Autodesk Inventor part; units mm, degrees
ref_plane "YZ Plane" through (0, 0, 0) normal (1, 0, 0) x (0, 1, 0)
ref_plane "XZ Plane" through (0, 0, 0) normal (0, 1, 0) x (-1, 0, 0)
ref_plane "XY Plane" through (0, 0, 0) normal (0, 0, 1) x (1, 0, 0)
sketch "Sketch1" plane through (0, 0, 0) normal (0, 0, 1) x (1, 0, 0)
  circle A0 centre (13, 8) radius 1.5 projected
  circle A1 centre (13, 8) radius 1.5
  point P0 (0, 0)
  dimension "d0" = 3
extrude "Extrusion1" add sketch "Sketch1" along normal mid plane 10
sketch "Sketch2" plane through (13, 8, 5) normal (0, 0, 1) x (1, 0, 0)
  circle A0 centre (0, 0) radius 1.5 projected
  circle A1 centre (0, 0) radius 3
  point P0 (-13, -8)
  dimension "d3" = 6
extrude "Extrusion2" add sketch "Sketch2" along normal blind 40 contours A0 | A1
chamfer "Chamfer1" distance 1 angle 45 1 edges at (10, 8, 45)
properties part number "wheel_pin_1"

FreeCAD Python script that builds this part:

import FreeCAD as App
import Part
import Sketcher
from FreeCAD import Vector


def edges_at(feature, points):
    """Names of the edges that pass closest to the given points."""
    edges = feature.Shape.Edges
    near = lambda p: min(range(len(edges)), key=lambda i: edges[i].distToShape(Part.Vertex(*p))[0])
    return sorted({f"Edge{near(p) + 1}" for p in points})

doc = App.newDocument("Part")
params = doc.addObject("Spreadsheet::Sheet", "Params")
for row, (alias, value) in enumerate([
    ("sketch1_diameter", "3 mm"),
    ("pad1_length", "10 mm"),
    ("sketch2_diameter", "6 mm"),
    ("pad2_length", "40 mm"),
    ("chamfer_size", "1 mm"),
], start=1):
    params.set(f"A{row}", alias)
    params.set(f"B{row}", "=" + value)
    params.setAlias(f"B{row}", alias)

body = doc.addObject("PartDesign::Body", "Body")

# Sketch on XY plane
sketch1 = body.newObject("Sketcher::SketchObject", "Sketch")
sketch1.AttachmentSupport = (doc.getObject("XY_Plane"), [""])
sketch1.MapMode = "FlatFace"
sketch1.addGeometry(Part.Circle(Vector(13, 8, 0), Vector(0, 0, 1), 1.5), False)
sketch1.addConstraint([
    Sketcher.Constraint("Diameter", 0, 3.0),
    Sketcher.Constraint("DistanceX", -1, 1, 0, 3, 13.0),
    Sketcher.Constraint("DistanceY", -1, 1, 0, 3, 8.0),
])
sketch1.setExpression("Constraints[0]", "Params.sketch1_diameter")
pad1 = body.newObject("PartDesign::Pad", "Pad")
pad1.Profile = sketch1
pad1.setExpression("Length", "Params.pad1_length")
pad1.Midplane = True

# Sketch on XY plane
sketch2 = body.newObject("Sketcher::SketchObject", "Sketch001")
sketch2.AttachmentSupport = (doc.getObject("XY_Plane"), [""])
sketch2.MapMode = "FlatFace"
sketch2.AttachmentOffset = App.Placement(Vector(0, 0, 5), App.Rotation())
sketch2.addGeometry(Part.Circle(Vector(13, 8, 0), Vector(0, 0, 1), 3), False)
sketch2.addConstraint([
    Sketcher.Constraint("Diameter", 0, 6.0),
    Sketcher.Constraint("DistanceX", -1, 1, 0, 3, 13.0),
    Sketcher.Constraint("DistanceY", -1, 1, 0, 3, 8.0),
])
sketch2.setExpression("Constraints[0]", "Params.sketch2_diameter")
pad2 = body.newObject("PartDesign::Pad", "Pad001")
pad2.Profile = sketch2
pad2.setExpression("Length", "Params.pad2_length")
doc.recompute()

chamfer = body.newObject("PartDesign::Chamfer", "Chamfer")
chamfer.Base = (pad2, edges_at(pad2, [(10, 8, 45)]))
chamfer.setExpression("Size", "Params.chamfer_size")

doc.recompute()
